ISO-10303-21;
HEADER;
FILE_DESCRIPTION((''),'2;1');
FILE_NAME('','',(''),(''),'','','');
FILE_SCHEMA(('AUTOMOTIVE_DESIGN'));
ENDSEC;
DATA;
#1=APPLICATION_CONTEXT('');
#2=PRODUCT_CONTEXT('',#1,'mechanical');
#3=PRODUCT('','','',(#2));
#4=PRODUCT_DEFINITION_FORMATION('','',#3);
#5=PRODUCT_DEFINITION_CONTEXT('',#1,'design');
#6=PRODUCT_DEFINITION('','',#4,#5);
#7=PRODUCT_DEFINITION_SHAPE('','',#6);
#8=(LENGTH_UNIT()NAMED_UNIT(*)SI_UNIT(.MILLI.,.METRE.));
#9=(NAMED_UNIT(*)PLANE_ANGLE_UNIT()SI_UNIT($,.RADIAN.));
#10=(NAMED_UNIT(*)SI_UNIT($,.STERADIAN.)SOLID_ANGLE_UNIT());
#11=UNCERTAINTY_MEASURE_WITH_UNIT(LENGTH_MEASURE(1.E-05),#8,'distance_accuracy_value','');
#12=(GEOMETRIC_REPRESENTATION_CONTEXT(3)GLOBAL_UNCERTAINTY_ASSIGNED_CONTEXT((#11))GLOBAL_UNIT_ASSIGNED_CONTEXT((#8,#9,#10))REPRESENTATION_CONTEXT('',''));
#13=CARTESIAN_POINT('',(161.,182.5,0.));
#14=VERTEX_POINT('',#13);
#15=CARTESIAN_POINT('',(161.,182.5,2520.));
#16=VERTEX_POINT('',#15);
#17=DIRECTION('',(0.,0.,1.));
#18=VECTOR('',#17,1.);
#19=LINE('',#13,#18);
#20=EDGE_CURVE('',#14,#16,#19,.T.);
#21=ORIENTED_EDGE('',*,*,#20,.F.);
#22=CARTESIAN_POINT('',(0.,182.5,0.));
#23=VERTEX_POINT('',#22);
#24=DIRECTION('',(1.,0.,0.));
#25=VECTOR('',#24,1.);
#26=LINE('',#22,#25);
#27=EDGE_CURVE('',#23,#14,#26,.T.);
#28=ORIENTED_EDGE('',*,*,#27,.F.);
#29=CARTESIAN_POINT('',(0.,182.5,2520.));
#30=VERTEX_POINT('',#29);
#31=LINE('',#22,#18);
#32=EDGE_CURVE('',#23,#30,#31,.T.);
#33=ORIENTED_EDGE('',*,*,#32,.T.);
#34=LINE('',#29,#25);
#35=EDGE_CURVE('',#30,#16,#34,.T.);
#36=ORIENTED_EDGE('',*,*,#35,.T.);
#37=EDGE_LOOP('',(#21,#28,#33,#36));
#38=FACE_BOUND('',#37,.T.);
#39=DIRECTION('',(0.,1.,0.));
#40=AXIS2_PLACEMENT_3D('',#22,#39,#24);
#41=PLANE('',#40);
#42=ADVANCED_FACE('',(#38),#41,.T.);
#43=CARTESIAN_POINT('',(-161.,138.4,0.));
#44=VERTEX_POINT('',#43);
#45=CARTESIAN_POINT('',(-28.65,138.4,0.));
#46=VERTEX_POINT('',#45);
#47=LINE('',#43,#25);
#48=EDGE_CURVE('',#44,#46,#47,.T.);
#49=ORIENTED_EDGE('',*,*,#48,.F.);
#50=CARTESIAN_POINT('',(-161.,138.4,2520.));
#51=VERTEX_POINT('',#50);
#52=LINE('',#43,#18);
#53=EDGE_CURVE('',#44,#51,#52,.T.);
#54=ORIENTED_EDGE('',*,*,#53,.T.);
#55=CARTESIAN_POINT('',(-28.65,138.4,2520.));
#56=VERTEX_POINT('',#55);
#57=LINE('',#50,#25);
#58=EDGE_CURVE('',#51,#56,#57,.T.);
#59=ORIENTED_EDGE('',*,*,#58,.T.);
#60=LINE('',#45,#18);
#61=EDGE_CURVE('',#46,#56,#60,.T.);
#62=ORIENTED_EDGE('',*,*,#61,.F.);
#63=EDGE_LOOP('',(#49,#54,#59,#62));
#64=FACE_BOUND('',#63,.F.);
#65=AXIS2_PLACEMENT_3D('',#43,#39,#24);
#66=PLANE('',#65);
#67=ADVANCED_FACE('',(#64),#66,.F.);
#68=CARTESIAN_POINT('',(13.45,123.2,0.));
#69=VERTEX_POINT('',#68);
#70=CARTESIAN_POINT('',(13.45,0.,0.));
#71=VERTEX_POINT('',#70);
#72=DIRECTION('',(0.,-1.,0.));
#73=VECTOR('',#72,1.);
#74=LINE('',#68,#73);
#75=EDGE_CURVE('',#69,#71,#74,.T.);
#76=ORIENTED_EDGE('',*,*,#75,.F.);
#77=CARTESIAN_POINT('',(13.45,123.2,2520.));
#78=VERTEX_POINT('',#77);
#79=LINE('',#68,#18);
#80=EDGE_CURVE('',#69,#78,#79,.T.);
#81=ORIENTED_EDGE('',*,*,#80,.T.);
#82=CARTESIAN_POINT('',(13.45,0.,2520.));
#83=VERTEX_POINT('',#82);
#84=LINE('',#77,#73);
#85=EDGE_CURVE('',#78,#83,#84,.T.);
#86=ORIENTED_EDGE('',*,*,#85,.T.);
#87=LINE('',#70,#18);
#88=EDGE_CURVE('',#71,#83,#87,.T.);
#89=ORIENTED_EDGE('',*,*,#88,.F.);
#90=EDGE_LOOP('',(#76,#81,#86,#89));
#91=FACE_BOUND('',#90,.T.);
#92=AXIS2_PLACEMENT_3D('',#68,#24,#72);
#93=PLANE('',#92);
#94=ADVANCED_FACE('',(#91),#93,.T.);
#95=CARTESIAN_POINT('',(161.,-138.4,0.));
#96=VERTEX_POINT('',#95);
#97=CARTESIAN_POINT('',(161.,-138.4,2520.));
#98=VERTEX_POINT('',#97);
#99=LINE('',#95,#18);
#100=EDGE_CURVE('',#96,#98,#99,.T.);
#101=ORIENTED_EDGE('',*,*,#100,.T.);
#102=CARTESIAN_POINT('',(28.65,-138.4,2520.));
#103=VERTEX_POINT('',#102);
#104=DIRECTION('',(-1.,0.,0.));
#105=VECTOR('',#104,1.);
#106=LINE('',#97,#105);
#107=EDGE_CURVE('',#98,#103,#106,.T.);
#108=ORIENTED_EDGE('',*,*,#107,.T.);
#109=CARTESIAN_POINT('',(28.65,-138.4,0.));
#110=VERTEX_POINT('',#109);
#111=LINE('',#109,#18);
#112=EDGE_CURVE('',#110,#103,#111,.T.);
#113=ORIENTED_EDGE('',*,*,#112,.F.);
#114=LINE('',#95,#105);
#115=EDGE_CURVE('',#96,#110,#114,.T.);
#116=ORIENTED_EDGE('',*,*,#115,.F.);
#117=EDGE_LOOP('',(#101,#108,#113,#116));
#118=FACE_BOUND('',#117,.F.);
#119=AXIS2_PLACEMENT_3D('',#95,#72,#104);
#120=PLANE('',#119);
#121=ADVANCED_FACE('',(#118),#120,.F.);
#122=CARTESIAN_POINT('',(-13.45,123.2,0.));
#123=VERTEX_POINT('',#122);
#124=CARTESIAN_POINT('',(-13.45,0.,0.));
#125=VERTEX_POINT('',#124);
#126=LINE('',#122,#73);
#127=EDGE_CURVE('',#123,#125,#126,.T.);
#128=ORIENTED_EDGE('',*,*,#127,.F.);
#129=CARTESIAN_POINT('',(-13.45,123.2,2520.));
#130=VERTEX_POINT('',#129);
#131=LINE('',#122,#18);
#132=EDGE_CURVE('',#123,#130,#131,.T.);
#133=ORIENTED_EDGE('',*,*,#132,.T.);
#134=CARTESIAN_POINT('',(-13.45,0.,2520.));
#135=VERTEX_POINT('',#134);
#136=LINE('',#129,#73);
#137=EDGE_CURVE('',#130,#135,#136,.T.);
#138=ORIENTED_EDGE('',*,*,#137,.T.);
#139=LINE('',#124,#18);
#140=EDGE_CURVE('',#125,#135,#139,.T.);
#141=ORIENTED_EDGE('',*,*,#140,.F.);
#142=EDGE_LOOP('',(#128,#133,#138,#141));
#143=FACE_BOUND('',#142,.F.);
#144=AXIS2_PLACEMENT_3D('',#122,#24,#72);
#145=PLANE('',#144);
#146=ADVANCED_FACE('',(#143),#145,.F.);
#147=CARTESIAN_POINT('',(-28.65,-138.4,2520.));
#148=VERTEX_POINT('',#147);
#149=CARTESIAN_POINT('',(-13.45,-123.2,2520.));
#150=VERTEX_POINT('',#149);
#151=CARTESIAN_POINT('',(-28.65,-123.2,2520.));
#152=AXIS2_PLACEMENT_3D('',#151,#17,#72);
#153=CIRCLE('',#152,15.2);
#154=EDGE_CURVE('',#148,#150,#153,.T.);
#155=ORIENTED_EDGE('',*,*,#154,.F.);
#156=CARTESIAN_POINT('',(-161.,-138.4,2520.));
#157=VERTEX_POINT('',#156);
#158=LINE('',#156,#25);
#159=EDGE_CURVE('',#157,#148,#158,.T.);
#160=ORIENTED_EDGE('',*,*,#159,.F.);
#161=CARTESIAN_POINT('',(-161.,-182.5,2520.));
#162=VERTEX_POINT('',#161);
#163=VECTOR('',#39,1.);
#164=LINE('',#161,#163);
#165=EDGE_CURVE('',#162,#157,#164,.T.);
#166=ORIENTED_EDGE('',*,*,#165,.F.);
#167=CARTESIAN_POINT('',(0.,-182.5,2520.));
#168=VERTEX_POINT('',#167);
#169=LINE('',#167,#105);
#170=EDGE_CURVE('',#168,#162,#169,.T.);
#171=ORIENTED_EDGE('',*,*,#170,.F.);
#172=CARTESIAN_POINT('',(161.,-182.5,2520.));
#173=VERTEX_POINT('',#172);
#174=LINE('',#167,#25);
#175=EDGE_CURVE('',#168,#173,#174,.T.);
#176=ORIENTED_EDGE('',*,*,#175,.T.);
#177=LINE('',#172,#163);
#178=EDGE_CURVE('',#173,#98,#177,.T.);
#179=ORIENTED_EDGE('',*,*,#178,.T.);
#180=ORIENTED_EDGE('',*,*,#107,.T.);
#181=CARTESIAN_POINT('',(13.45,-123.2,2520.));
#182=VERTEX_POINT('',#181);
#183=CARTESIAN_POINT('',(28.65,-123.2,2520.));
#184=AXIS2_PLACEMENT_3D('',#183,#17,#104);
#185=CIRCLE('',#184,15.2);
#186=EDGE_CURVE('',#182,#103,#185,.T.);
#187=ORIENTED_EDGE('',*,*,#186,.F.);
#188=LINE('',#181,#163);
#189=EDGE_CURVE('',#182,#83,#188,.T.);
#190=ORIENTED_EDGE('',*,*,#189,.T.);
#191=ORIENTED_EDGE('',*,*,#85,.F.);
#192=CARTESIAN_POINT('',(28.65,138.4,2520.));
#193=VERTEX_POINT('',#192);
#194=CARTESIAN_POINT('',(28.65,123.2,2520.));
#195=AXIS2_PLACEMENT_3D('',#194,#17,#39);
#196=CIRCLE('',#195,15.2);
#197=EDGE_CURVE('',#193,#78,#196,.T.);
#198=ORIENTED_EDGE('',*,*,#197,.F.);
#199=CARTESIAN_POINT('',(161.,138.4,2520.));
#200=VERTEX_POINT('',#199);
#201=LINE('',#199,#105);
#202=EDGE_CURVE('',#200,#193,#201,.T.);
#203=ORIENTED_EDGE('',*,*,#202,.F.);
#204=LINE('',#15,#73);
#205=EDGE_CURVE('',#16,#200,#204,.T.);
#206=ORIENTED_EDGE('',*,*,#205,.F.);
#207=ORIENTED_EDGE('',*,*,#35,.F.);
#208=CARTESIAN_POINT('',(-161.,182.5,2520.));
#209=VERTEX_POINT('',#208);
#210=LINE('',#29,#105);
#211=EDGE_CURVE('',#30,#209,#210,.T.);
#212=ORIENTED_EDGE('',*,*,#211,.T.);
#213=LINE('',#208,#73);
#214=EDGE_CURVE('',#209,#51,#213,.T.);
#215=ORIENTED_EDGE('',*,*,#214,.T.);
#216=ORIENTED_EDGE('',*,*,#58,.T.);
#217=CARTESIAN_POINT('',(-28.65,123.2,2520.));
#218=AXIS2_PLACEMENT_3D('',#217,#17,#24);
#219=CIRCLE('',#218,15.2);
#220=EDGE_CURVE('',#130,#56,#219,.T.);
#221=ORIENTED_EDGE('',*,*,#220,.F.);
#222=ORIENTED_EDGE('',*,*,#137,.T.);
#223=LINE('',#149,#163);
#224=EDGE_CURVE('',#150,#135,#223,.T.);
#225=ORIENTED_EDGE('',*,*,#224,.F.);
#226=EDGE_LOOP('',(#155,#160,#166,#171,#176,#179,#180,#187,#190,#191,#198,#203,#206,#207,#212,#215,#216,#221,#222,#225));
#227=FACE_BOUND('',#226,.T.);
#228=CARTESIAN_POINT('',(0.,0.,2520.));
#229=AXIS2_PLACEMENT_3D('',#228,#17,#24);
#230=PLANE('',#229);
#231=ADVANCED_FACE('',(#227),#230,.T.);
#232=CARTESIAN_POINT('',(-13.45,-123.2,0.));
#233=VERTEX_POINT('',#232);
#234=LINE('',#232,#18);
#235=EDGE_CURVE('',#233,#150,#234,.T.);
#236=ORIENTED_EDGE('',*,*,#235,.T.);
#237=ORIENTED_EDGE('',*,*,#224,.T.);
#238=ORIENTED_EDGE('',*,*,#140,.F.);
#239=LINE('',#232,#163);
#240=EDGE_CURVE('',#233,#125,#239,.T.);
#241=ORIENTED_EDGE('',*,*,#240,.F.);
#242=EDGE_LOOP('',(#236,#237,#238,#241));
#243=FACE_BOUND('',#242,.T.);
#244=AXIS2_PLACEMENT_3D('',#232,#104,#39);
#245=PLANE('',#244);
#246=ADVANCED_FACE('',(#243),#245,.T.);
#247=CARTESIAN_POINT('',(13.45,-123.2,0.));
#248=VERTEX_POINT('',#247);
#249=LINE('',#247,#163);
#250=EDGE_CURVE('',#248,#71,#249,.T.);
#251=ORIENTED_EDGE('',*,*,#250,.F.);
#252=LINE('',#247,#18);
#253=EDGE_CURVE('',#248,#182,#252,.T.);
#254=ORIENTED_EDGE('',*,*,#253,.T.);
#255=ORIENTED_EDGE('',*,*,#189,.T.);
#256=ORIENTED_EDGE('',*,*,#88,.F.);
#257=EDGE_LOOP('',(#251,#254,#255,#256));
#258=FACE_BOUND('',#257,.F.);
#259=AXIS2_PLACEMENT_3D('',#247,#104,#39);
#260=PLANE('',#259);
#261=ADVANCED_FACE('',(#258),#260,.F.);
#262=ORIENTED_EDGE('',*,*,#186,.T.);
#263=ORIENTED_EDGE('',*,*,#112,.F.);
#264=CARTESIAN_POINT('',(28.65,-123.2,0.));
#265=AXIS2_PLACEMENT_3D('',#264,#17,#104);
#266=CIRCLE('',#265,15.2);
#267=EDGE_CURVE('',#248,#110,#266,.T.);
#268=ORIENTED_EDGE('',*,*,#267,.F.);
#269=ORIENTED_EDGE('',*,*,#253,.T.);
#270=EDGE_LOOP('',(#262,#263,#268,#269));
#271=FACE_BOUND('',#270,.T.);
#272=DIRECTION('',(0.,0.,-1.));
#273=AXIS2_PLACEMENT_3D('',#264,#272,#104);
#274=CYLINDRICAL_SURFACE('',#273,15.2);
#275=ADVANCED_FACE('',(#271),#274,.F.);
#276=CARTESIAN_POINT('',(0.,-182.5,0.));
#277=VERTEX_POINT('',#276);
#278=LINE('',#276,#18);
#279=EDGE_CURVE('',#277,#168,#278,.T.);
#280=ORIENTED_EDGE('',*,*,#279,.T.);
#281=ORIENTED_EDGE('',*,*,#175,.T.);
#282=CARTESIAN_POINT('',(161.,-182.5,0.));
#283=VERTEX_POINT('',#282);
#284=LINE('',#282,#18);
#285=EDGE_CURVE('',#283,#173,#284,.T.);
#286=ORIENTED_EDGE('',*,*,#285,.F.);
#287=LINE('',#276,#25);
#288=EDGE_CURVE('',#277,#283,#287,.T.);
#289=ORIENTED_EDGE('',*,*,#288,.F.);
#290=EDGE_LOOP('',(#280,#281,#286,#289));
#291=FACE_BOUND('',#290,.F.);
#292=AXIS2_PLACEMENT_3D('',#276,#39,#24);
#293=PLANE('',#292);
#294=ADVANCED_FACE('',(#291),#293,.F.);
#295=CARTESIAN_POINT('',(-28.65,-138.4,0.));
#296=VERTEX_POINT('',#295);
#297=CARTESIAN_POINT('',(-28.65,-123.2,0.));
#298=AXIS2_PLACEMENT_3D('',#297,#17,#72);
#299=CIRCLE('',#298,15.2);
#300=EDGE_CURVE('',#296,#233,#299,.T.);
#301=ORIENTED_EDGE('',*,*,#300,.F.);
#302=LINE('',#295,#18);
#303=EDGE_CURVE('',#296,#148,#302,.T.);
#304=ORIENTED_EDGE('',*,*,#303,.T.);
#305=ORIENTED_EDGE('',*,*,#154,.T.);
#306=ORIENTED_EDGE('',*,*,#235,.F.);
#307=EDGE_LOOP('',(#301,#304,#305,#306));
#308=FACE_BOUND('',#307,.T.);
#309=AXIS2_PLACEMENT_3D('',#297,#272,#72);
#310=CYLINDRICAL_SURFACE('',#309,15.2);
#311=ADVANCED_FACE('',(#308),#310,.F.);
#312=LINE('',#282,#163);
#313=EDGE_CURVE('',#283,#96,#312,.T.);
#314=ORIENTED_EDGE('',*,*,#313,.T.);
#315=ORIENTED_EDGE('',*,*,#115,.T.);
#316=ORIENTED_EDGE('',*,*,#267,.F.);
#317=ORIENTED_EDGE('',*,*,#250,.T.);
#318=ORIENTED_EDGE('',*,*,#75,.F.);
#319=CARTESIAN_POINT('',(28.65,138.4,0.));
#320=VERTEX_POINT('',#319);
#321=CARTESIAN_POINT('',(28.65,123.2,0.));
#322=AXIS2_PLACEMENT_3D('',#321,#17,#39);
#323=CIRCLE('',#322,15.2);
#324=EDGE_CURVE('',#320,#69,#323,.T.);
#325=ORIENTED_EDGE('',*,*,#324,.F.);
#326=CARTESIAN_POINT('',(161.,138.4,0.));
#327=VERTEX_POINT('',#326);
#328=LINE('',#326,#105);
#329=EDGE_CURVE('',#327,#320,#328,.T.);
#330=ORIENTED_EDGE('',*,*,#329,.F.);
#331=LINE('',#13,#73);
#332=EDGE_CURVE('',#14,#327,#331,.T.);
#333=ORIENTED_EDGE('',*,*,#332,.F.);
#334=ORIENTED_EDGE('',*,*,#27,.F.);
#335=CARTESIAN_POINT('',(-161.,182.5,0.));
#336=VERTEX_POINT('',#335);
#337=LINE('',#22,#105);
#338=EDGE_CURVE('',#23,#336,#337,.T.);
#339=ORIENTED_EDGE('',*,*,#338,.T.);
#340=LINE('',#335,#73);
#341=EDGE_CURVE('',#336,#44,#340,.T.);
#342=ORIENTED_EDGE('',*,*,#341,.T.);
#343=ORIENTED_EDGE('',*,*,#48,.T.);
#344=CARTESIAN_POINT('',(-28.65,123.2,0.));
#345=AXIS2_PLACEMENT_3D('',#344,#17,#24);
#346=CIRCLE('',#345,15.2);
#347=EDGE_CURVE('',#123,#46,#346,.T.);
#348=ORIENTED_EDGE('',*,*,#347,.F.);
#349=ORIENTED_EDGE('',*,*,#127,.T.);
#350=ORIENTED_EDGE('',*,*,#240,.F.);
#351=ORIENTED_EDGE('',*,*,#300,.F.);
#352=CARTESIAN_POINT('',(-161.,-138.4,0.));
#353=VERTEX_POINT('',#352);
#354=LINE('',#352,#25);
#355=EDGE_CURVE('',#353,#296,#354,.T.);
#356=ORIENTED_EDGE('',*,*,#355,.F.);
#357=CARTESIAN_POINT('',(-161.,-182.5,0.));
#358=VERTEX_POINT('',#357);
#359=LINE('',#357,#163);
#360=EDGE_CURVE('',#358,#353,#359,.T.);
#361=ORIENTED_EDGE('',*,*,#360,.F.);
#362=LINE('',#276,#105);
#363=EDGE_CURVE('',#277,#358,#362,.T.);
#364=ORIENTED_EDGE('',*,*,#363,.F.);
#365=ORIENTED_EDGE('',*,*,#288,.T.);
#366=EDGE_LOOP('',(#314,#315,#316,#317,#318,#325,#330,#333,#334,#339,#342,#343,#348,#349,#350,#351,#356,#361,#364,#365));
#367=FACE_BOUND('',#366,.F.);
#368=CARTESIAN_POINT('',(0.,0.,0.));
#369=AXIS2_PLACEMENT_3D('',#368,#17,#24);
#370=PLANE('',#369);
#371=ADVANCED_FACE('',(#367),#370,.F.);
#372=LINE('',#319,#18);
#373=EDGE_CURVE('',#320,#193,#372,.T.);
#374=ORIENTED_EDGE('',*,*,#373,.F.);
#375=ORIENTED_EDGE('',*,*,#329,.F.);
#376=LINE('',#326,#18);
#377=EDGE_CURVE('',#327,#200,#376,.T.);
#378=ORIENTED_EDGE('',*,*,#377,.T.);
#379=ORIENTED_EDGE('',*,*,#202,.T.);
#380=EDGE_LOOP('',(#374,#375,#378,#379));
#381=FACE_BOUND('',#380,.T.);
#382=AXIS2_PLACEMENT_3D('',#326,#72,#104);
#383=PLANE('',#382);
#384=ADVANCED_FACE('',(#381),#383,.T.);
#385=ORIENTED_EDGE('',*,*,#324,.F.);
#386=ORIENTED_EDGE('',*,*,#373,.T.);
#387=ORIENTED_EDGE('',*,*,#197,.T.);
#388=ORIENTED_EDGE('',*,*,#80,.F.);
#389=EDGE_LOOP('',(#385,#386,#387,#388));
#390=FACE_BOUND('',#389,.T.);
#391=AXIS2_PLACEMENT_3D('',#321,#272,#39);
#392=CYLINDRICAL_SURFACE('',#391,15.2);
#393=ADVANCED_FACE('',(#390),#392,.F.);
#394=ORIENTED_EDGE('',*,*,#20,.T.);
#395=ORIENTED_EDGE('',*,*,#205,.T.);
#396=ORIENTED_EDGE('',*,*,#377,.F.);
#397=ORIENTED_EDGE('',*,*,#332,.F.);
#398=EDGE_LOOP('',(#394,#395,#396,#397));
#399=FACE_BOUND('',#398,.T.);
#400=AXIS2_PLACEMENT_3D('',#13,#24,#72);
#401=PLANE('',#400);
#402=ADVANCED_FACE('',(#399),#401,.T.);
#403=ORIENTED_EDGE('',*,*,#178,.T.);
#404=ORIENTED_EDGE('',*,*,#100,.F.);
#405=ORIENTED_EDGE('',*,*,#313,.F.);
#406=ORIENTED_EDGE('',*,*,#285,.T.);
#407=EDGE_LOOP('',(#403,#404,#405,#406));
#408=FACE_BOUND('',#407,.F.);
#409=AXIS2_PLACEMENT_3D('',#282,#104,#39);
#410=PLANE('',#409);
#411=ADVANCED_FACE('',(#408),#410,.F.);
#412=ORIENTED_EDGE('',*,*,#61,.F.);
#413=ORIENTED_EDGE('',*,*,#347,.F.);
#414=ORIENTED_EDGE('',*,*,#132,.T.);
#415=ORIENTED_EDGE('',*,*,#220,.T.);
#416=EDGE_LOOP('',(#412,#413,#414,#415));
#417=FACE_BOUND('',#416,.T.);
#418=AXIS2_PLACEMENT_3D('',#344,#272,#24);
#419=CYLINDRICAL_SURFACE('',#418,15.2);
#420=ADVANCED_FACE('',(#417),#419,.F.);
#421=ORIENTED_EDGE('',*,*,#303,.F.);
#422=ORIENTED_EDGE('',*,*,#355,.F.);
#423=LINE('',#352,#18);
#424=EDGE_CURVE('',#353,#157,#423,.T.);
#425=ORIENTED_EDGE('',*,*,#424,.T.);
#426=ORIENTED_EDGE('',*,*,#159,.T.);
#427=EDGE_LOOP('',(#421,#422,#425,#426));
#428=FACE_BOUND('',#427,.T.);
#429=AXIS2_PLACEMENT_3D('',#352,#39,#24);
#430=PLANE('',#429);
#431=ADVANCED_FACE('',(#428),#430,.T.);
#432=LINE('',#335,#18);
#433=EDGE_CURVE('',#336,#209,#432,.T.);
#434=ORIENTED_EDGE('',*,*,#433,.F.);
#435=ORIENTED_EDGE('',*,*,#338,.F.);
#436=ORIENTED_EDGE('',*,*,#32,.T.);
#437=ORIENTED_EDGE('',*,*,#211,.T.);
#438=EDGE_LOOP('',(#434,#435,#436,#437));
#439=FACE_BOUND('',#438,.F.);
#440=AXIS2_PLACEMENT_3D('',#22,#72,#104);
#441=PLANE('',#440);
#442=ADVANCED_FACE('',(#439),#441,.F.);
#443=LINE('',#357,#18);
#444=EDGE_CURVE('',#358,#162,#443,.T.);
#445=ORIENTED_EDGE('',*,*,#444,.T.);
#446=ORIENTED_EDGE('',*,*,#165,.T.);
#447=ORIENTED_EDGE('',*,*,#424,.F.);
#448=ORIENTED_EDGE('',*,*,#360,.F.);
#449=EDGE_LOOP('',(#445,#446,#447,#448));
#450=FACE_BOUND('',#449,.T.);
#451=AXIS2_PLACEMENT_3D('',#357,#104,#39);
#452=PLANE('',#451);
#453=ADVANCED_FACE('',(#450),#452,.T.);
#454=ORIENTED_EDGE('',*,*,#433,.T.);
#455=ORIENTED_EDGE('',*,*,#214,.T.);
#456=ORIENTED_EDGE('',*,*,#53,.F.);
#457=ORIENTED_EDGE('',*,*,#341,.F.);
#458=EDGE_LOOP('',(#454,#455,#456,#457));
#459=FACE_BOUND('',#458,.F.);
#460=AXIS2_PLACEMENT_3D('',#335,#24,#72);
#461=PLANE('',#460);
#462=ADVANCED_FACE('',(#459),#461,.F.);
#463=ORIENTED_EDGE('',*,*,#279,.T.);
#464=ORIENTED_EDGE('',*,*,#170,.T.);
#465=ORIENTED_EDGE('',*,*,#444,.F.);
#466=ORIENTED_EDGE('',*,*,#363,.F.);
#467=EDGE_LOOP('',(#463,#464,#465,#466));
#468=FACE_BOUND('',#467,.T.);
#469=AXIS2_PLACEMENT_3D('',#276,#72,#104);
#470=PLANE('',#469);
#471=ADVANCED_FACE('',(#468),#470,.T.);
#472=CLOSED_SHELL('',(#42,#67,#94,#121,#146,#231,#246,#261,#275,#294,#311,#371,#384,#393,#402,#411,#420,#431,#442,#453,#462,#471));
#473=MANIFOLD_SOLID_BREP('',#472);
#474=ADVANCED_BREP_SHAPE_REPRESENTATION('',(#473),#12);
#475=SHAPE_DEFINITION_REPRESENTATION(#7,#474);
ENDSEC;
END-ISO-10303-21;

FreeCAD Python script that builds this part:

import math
import FreeCAD as App
import Part
import Sketcher
Q = App.Units.Quantity

doc = App.newDocument("Part")
body = doc.addObject("PartDesign::Body", "Body")

sketch1 = body.newObject("Sketcher::SketchObject", "Sketch")
sketch1.AttachmentSupport = (doc.getObject("XY_Plane"), [""])
sketch1.MapMode = "FlatFace"
sketch1.addGeometry([
    Part.LineSegment(App.Vector(-161, -138, 0), App.Vector(-161, -182, 0)),
    Part.LineSegment(App.Vector(-161, -182, 0), App.Vector(161, -182, 0)),
    Part.LineSegment(App.Vector(161, -182, 0), App.Vector(161, -138, 0)),
    Part.LineSegment(App.Vector(161, -138, 0), App.Vector(29, -138, 0)),
    Part.ArcOfCircle(Part.Circle(App.Vector(29, -123, 0), App.Vector(0, 0, 1), 15), math.radians(180), math.radians(270)),
    Part.LineSegment(App.Vector(13, -123, 0), App.Vector(13, 123, 0)),
    Part.ArcOfCircle(Part.Circle(App.Vector(29, 123, 0), App.Vector(0, 0, 1), 15), math.radians(90), math.radians(180)),
    Part.LineSegment(App.Vector(29, 138, 0), App.Vector(161, 138, 0)),
    Part.LineSegment(App.Vector(161, 138, 0), App.Vector(161, 182, 0)),
    Part.LineSegment(App.Vector(161, 182, 0), App.Vector(-161, 182, 0)),
    Part.LineSegment(App.Vector(-161, 182, 0), App.Vector(-161, 138, 0)),
    Part.LineSegment(App.Vector(-161, 138, 0), App.Vector(-29, 138, 0)),
    Part.ArcOfCircle(Part.Circle(App.Vector(-29, 123, 0), App.Vector(0, 0, 1), 15), math.radians(0), math.radians(90)),
    Part.LineSegment(App.Vector(-13, 123, 0), App.Vector(-13, -123, 0)),
    Part.ArcOfCircle(Part.Circle(App.Vector(-29, -123, 0), App.Vector(0, 0, 1), 15), math.radians(-90), math.radians(0)),
    Part.LineSegment(App.Vector(-29, -138, 0), App.Vector(-161, -138, 0)),
], False)
sketch1.addConstraint([
    Sketcher.Constraint("Coincident", 0, 2, 1, 1),
    Sketcher.Constraint("Coincident", 1, 2, 2, 1),
    Sketcher.Constraint("Coincident", 2, 2, 3, 1),
    Sketcher.Constraint("Tangent", 3, 2, 4, 2),
    Sketcher.Constraint("Tangent", 4, 1, 5, 1),
    Sketcher.Constraint("Tangent", 5, 2, 6, 2),
    Sketcher.Constraint("Tangent", 6, 1, 7, 1),
    Sketcher.Constraint("Coincident", 7, 2, 8, 1),
    Sketcher.Constraint("Coincident", 8, 2, 9, 1),
    Sketcher.Constraint("Coincident", 9, 2, 10, 1),
    Sketcher.Constraint("Coincident", 10, 2, 11, 1),
    Sketcher.Constraint("Tangent", 11, 2, 12, 2),
    Sketcher.Constraint("Tangent", 12, 1, 13, 1),
    Sketcher.Constraint("Tangent", 13, 2, 14, 2),
    Sketcher.Constraint("Tangent", 14, 1, 15, 1),
    Sketcher.Constraint("Coincident", 15, 2, 0, 1),
    Sketcher.Constraint("Vertical", 0),
    Sketcher.Constraint("Horizontal", 1),
    Sketcher.Constraint("Vertical", 2),
    Sketcher.Constraint("Horizontal", 3),
    Sketcher.Constraint("Vertical", 5),
    Sketcher.Constraint("Horizontal", 7),
    Sketcher.Constraint("Vertical", 8),
    Sketcher.Constraint("Horizontal", 9),
    Sketcher.Constraint("Vertical", 10),
    Sketcher.Constraint("Horizontal", 11),
    Sketcher.Constraint("Vertical", 13),
    Sketcher.Constraint("Horizontal", 15),
    Sketcher.Constraint("Equal", 4, 6),
    Sketcher.Constraint("Equal", 6, 12),
    Sketcher.Constraint("Equal", 12, 14),
    Sketcher.Constraint("Symmetric", 4, 3, 12, 3, -1, 1),
    Sketcher.Constraint("Symmetric", 0, 2, 8, 2, -1, 1),
    Sketcher.Constraint("Symmetric", 7, 2, 10, 2, -2),
    Sketcher.Constraint("Symmetric", 2, 2, 15, 2, -2),
    Sketcher.Constraint("Radius", 4, Q("15.2 mm")),
    Sketcher.Constraint("DistanceY", 0, 2, 0, 1, Q("44.1 mm")),
    Sketcher.Constraint("DistanceX", 0, 2, -1, 1, Q("161 mm")),
    Sketcher.Constraint("DistanceY", 0, 2, -1, 1, Q("182.5 mm")),
    Sketcher.Constraint("DistanceX", -1, 1, 4, 1, Q("13.45 mm")),
])
pad1 = body.newObject("PartDesign::Pad", "Pad")
pad1.Profile = sketch1
pad1.Length = 2520

doc.recompute()
